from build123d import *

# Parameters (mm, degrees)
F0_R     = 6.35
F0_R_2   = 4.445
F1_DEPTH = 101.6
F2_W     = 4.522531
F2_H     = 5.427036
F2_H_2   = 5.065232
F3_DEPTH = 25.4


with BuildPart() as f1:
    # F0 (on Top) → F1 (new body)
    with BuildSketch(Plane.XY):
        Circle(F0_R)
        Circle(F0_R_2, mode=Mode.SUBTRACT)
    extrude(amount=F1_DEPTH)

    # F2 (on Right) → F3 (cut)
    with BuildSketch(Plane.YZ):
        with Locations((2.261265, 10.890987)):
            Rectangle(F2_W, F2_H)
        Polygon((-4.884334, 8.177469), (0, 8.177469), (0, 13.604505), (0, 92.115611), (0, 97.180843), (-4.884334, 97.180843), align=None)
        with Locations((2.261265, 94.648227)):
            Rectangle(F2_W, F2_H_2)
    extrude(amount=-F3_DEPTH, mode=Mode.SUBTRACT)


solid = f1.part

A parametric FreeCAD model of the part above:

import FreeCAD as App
import Part
import Sketcher
Q = App.Units.Quantity


def add_polygon(sketch, points):
    """Adds a closed chain of lines whose ends are joined by coincident constraints."""
    first, n = sketch.GeometryCount, len(points)
    for a, b in zip(points, points[1:] + points[:1]):
        sketch.addGeometry(Part.LineSegment(App.Vector(*a, 0), App.Vector(*b, 0)), False)
    for i in range(n):
        sketch.addConstraint(Sketcher.Constraint("Coincident", first + i, 2, first + (i + 1) % n, 1))

doc = App.newDocument("Part")
body = doc.addObject("PartDesign::Body", "Body")

# Sketch on XY plane
sketch1 = body.newObject("Sketcher::SketchObject", "Sketch")
sketch1.AttachmentSupport = (doc.getObject("XY_Plane"), [""])
sketch1.MapMode = "FlatFace"
sketch1.addGeometry([
    Part.Circle(App.Vector(0, 0, 0), App.Vector(0, 0, 1), 6.3),
    Part.Circle(App.Vector(0, 0, 0), App.Vector(0, 0, 1), 4.4),
], False)
sketch1.addConstraint([
    Sketcher.Constraint("Coincident", 0, 3, -1, 1),
    Sketcher.Constraint("Coincident", 1, 3, -1, 1),
    Sketcher.Constraint("Diameter", 0, Q("0.5 in")),
    Sketcher.Constraint("Diameter", 1, Q("0.35 in")),
])
pad1 = body.newObject("PartDesign::Pad", "Pad")
pad1.Profile = sketch1
pad1.Length = Q("4 in")

# Sketch on YZ plane
sketch2 = body.newObject("Sketcher::SketchObject", "Sketch001")
sketch2.AttachmentSupport = (doc.getObject("YZ_Plane"), [""])
sketch2.MapMode = "FlatFace"
add_polygon(sketch2, [(-4.9, 8.2), (4.5, 8.2), (4.5, 13.6), (0, 13.6), (0, 92.1), (4.5, 92.1), (4.5, 97.2), (-4.9, 97.2)])  # lines 0-7
sketch2.addConstraint([
    Sketcher.Constraint("Horizontal", 0),
    Sketcher.Constraint("Vertical", 1),
    Sketcher.Constraint("Horizontal", 2),
    Sketcher.Constraint("Vertical", 3),
    Sketcher.Constraint("Horizontal", 4),
    Sketcher.Constraint("Vertical", 5),
    Sketcher.Constraint("Horizontal", 6),
    Sketcher.Constraint("Vertical", 7),
    Sketcher.Constraint("PointOnObject", 2, 2, -2),
    Sketcher.Constraint("Vertical", 1, 2, 4, 2),
    Sketcher.Constraint("DistanceX", 2, 2, 2, 1, Q("4.522531 mm")),
    Sketcher.Constraint("DistanceY", 5, 1, 5, 2, Q("5.065232 mm")),
    Sketcher.Constraint("DistanceX", 0, 1, 0, 2, Q("9.406865 mm")),
    Sketcher.Constraint("DistanceY", 1, 1, 1, 2, Q("5.427036 mm")),
    Sketcher.Constraint("DistanceY", 3, 1, 3, 2, Q("78.511106 mm")),
    Sketcher.Constraint("DistanceY", -1, 1, 0, 2, Q("8.177469 mm")),
])
pocket1 = body.newObject("PartDesign::Pocket", "Pocket")
pocket1.Profile = sketch2
pocket1.Length = Q("1 in")

doc.recompute()
